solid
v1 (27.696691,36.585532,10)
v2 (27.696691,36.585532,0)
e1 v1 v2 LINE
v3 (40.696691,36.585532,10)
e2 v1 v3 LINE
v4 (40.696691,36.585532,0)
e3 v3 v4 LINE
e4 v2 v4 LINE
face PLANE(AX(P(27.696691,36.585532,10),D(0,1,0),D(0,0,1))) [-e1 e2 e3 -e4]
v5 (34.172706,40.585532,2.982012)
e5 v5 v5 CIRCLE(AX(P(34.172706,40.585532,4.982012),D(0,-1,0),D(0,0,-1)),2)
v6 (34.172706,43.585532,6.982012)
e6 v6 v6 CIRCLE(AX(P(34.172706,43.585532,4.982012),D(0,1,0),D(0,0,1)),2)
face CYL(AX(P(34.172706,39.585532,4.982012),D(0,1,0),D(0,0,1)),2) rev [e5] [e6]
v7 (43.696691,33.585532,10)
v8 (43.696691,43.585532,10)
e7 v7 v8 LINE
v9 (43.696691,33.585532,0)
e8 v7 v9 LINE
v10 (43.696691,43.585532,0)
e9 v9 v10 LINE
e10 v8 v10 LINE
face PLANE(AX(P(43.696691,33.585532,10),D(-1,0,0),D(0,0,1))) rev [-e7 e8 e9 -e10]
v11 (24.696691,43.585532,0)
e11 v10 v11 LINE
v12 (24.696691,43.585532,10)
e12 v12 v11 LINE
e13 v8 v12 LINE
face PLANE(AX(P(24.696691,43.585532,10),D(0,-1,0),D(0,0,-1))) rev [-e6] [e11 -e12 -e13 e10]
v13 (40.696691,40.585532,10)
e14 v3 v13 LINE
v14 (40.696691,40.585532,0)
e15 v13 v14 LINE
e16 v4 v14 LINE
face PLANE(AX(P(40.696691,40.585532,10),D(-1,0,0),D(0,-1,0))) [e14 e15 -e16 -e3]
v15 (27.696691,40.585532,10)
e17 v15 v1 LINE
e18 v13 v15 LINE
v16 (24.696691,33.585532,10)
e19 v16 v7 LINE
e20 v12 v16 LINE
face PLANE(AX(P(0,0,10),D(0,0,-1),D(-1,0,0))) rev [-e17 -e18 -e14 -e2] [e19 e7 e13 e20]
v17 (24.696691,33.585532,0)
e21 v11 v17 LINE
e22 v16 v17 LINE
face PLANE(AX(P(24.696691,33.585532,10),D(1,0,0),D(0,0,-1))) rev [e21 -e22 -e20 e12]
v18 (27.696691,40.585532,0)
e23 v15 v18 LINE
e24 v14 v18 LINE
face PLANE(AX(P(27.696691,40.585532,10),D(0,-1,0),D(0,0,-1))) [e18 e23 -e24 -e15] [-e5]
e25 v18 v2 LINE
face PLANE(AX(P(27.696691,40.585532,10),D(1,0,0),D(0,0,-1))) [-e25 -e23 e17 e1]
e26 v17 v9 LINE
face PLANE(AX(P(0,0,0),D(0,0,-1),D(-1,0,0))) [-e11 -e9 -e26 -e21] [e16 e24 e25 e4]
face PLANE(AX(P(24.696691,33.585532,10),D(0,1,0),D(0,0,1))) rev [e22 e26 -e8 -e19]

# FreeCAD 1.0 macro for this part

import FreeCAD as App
import Part
import Sketcher
Q = App.Units.Quantity


def add_polygon(sketch, points):
    """Adds a closed chain of lines whose ends are joined by coincident constraints."""
    first, n = sketch.GeometryCount, len(points)
    for a, b in zip(points, points[1:] + points[:1]):
        sketch.addGeometry(Part.LineSegment(App.Vector(*a, 0), App.Vector(*b, 0)), False)
    for i in range(n):
        sketch.addConstraint(Sketcher.Constraint("Coincident", first + i, 2, first + (i + 1) % n, 1))

doc = App.newDocument("Part")
body = doc.addObject("PartDesign::Body", "Body")

sketch1 = body.newObject("Sketcher::SketchObject", "Sketch")
sketch1.AttachmentSupport = (doc.getObject("XY_Plane"), [""])
sketch1.MapMode = "FlatFace"
add_polygon(sketch1, [(24.7, 43.6), (24.7, 33.6), (43.7, 33.6), (43.7, 43.6)])
add_polygon(sketch1, [(40.7, 36.6), (27.7, 36.6), (27.7, 40.6), (40.7, 40.6)])
sketch1.addConstraint([
    Sketcher.Constraint("Vertical", 0),
    Sketcher.Constraint("Horizontal", 1),
    Sketcher.Constraint("Vertical", 2),
    Sketcher.Constraint("Horizontal", 3),
    Sketcher.Constraint("Horizontal", 4),
    Sketcher.Constraint("Vertical", 5),
    Sketcher.Constraint("Horizontal", 6),
    Sketcher.Constraint("Vertical", 7),
    Sketcher.Constraint("DistanceX", 1, 1, 1, 2, Q("19 mm")),
    Sketcher.Constraint("DistanceX", 4, 2, 4, 1, Q("13 mm")),
    Sketcher.Constraint("DistanceY", 0, 2, 0, 1, Q("10 mm")),
    Sketcher.Constraint("DistanceY", 5, 1, 5, 2, Q("4 mm")),
    Sketcher.Constraint("DistanceX", 0, 2, 4, 2, Q("3 mm")),
    Sketcher.Constraint("DistanceY", 0, 2, 4, 2, Q("3 mm")),
    Sketcher.Constraint("DistanceX", -1, 1, 0, 2, Q("24.696691 mm")),
    Sketcher.Constraint("DistanceY", -1, 1, 0, 2, Q("33.585532 mm")),
])
pad1 = body.newObject("PartDesign::Pad", "Pad")
pad1.Profile = sketch1
pad1.Length = 10

sketch2 = body.newObject("Sketcher::SketchObject", "Sketch001")
sketch2.AttachmentSupport = (doc.getObject("XZ_Plane"), [""])
sketch2.MapMode = "FlatFace"
sketch2.AttachmentOffset = App.Placement(App.Vector(0, 0, -43.585532), App.Rotation())
sketch2.addGeometry(Part.Circle(App.Vector(34.2, 5, 0), App.Vector(0, 0, 1), 2), False)
sketch2.addConstraint([
    Sketcher.Constraint("Diameter", 0, Q("4 mm")),
    Sketcher.Constraint("DistanceY", -1, 1, 0, 3, Q("4.982012 mm")),
    Sketcher.Constraint("DistanceX", -1, 1, 0, 3, Q("34.172706 mm")),
])
pocket1 = body.newObject("PartDesign::Pocket", "Pocket")
pocket1.Profile = sketch2
pocket1.Length = 4
pocket1.Reversed = True

doc.recompute()
